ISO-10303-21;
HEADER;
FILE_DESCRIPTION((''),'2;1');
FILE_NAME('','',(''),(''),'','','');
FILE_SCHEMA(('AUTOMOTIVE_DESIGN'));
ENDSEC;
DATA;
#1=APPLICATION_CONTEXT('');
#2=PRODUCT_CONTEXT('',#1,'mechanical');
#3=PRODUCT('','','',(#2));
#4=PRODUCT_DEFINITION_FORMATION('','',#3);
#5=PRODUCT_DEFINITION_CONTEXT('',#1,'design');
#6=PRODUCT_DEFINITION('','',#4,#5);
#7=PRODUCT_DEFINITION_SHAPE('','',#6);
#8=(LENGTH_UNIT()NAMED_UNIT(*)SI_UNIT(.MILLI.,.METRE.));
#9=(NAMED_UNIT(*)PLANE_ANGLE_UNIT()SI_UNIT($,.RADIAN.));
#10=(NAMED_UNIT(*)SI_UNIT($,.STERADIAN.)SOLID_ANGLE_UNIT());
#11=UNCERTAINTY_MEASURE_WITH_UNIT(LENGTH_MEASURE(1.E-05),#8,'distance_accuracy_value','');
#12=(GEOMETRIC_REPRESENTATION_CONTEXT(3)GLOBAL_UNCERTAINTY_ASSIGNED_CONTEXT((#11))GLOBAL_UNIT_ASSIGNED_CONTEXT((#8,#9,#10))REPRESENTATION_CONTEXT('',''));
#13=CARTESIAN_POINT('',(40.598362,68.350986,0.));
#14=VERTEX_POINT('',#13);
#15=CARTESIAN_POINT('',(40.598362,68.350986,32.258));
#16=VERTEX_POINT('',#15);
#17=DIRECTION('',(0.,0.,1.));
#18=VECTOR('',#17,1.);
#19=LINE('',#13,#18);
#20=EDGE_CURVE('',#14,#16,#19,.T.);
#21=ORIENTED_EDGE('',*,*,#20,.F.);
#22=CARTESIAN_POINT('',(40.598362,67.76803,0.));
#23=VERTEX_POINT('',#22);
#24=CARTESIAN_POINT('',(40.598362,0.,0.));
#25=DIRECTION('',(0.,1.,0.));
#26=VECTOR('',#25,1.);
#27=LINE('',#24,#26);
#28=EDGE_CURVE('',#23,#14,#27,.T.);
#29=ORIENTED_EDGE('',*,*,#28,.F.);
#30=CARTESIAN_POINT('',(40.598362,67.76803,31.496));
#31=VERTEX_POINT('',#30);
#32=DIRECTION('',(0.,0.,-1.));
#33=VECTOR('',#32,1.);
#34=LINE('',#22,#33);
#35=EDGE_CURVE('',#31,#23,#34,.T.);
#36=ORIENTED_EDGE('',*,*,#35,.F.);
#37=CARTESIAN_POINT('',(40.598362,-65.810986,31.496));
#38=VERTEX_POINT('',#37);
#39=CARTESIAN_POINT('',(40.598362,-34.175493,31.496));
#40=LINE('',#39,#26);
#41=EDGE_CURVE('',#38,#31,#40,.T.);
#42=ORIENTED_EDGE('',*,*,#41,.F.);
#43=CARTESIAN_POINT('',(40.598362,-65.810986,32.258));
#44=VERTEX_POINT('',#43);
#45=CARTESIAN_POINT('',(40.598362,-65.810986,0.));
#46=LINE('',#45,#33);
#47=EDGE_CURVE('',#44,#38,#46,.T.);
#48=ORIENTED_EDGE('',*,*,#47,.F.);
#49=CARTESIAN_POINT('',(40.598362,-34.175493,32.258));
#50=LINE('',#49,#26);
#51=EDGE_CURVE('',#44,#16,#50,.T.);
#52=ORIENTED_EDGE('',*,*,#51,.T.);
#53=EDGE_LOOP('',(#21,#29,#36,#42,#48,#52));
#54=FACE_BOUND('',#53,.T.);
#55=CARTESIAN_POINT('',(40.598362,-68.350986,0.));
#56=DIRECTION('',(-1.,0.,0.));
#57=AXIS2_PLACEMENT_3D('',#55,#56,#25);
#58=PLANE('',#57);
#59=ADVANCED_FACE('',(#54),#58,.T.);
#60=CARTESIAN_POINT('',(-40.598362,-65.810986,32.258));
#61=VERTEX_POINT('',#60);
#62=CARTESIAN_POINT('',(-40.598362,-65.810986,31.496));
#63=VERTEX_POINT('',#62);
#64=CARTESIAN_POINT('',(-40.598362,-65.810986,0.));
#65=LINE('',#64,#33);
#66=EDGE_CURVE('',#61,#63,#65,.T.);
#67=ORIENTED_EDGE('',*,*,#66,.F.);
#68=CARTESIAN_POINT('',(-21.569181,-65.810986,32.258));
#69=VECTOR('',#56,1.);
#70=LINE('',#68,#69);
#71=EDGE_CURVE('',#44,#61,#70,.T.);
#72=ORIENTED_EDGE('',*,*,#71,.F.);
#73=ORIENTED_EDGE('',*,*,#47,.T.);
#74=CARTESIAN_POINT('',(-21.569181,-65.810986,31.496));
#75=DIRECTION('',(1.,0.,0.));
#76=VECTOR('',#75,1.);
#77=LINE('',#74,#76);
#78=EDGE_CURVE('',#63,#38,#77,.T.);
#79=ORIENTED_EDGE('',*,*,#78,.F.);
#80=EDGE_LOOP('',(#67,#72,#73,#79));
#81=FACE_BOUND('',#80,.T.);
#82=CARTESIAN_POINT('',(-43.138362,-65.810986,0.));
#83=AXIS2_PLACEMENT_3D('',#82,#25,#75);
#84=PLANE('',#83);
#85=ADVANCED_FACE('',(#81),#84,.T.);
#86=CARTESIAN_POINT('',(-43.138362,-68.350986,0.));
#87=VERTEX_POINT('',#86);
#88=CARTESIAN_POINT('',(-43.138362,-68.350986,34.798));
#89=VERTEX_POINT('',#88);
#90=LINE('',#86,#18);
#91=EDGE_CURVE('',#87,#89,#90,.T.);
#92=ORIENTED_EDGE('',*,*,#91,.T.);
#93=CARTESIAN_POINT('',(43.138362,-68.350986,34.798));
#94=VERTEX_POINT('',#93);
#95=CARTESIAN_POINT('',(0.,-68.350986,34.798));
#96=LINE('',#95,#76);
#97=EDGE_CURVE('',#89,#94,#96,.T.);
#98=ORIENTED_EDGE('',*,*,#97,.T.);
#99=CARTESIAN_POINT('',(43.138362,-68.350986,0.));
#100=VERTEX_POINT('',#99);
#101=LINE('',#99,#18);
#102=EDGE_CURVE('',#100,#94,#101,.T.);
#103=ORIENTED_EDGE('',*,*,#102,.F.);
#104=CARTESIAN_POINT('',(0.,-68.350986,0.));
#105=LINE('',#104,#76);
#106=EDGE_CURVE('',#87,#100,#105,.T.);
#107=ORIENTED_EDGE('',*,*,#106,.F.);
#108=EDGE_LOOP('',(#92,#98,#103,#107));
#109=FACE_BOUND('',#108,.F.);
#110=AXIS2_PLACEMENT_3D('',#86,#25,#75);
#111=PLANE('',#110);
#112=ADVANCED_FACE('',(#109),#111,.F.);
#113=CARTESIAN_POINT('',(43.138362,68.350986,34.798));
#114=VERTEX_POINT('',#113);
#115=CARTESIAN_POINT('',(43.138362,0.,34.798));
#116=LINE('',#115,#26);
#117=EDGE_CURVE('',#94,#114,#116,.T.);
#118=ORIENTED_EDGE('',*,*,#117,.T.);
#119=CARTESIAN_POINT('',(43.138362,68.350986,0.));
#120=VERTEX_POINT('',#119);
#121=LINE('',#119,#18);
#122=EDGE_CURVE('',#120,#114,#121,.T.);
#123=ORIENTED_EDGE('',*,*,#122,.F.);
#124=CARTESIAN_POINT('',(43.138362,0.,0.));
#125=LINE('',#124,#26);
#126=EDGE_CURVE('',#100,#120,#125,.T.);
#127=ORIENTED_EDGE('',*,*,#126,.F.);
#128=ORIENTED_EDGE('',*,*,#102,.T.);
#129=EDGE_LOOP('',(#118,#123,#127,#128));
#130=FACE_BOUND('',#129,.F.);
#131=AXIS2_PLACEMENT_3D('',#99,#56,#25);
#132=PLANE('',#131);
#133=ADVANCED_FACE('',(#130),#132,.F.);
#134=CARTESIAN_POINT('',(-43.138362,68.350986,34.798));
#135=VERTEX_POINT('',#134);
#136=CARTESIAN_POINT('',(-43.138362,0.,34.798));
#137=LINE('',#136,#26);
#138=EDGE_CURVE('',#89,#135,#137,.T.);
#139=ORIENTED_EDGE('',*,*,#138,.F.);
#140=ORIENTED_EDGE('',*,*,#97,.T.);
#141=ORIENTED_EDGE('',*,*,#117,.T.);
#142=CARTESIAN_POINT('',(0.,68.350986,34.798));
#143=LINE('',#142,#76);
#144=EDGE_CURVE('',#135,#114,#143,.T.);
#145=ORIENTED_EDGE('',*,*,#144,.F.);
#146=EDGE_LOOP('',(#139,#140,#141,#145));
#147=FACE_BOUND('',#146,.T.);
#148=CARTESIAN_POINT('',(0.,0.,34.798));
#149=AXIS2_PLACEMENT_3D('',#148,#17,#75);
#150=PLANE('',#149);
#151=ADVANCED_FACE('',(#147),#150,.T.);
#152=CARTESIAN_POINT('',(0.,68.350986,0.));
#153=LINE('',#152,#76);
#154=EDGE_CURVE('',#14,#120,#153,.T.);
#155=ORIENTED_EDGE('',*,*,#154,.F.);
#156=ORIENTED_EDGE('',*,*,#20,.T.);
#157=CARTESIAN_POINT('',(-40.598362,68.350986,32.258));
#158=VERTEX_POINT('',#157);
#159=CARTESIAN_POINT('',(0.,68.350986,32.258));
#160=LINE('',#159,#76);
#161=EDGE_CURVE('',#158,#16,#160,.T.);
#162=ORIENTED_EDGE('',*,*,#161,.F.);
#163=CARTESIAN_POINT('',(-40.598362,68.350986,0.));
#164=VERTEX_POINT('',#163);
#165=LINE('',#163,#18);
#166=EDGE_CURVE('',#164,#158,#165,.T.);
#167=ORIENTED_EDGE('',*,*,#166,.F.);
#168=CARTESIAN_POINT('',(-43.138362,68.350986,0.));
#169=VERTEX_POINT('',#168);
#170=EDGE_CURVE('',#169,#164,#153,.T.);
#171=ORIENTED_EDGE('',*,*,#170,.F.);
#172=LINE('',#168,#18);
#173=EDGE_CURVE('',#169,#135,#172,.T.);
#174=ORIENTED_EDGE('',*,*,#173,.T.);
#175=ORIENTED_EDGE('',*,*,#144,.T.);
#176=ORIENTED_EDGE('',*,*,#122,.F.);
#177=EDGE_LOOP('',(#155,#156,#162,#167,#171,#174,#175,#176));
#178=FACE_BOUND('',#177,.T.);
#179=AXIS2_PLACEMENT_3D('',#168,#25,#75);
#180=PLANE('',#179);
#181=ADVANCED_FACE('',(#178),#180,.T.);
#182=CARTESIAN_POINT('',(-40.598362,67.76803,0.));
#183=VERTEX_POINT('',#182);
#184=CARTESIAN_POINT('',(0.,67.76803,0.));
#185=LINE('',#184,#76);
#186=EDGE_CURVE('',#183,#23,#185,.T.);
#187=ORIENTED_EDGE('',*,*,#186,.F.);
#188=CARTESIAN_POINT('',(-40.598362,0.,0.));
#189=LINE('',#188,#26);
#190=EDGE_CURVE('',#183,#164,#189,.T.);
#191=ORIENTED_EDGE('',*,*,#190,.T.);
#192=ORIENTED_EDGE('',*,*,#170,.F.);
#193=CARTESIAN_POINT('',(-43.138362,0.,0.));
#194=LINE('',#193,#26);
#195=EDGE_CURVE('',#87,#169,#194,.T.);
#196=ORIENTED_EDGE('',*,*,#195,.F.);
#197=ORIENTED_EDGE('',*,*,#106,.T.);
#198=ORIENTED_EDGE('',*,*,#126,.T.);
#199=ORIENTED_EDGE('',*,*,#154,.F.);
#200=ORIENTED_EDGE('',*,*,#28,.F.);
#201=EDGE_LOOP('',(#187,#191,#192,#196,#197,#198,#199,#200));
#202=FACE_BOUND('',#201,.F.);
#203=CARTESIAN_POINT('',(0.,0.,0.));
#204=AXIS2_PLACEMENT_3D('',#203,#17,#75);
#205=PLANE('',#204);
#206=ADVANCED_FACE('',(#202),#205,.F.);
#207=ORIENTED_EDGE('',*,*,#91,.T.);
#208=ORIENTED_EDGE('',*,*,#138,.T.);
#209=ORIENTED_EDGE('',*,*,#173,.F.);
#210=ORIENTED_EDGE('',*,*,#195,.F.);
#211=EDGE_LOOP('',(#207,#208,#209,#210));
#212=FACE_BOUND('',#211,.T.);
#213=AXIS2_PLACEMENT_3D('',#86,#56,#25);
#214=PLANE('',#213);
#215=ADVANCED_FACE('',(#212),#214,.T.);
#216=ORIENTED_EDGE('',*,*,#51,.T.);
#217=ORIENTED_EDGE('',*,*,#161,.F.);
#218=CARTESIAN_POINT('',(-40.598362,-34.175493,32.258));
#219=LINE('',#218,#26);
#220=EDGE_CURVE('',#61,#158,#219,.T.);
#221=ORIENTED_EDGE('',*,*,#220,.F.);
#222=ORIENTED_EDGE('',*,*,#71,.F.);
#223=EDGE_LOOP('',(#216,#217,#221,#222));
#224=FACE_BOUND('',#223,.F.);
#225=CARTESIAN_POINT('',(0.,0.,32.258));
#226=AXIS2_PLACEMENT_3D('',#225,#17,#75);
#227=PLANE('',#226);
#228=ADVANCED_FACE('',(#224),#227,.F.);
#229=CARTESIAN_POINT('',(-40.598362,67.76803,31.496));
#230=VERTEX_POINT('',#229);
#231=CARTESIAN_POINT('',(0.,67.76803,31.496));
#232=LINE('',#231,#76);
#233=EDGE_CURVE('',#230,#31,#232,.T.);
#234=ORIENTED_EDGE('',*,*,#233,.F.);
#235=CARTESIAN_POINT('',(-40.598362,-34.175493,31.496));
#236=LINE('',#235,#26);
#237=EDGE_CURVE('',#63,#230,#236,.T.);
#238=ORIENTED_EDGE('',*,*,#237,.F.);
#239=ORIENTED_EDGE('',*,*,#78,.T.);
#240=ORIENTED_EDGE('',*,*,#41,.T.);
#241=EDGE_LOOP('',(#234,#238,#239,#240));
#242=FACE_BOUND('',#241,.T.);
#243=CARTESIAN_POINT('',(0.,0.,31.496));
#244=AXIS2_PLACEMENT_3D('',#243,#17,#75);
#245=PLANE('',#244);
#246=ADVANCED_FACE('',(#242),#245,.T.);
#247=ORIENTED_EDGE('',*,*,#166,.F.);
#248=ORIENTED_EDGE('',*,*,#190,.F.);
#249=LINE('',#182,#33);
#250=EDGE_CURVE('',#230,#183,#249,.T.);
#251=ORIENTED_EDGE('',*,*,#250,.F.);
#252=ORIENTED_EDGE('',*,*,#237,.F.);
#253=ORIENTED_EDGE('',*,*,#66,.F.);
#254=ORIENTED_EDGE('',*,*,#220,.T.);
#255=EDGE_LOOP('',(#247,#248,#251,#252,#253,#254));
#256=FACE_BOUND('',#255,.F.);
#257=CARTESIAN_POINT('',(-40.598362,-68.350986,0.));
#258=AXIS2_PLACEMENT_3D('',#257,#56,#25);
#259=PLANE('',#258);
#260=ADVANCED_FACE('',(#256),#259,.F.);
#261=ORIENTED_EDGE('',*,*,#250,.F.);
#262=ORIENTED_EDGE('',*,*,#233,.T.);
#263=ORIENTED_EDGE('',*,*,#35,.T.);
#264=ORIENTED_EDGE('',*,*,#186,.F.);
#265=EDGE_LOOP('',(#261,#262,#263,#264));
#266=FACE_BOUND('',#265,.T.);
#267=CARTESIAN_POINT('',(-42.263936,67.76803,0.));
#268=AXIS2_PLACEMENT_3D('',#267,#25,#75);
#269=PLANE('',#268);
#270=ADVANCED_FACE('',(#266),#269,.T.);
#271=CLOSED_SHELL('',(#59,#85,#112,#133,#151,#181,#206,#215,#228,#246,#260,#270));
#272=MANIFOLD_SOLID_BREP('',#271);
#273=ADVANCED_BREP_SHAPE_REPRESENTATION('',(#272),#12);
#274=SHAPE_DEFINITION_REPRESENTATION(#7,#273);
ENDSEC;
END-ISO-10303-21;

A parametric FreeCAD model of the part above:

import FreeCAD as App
import Part
import Sketcher
Q = App.Units.Quantity


def faces_at(feature, points):
    """Names of the faces that lie closest to the given points."""
    faces = feature.Shape.Faces
    near = lambda p: min(range(len(faces)), key=lambda i: faces[i].distToShape(Part.Vertex(*p))[0])
    return sorted({f"Face{near(p) + 1}" for p in points})

doc = App.newDocument("Part")
body = doc.addObject("PartDesign::Body", "Body")

sketch1 = doc.addObject("Sketcher::SketchObject", "Sketch")
body.addObject(sketch1)
sketch1.AttachmentSupport = (doc.XY_Plane, [""])
sketch1.MapMode = "FlatFace"
sketch1.addGeometry([
    Part.LineSegment(App.Vector(-43.138362, 68.350986, 0), App.Vector(-43.138362, -68.350986, 0)),
    Part.LineSegment(App.Vector(-43.138362, -68.350986, 0), App.Vector(43.138362, -68.350986, 0)),
    Part.LineSegment(App.Vector(43.138362, -68.350986, 0), App.Vector(43.138362, 68.350986, 0)),
    Part.LineSegment(App.Vector(43.138362, 68.350986, 0), App.Vector(-43.138362, 68.350986, 0)),
], False)
sketch1.addConstraint([
    Sketcher.Constraint("Coincident", 0, 2, 1, 1),
    Sketcher.Constraint("Coincident", 1, 2, 2, 1),
    Sketcher.Constraint("Coincident", 2, 2, 3, 1),
    Sketcher.Constraint("Coincident", 3, 2, 0, 1),
    Sketcher.Constraint("Vertical", 0),
    Sketcher.Constraint("Horizontal", 1),
    Sketcher.Constraint("Vertical", 2),
    Sketcher.Constraint("Horizontal", 3),
    Sketcher.Constraint("Symmetric", 0, 2, 2, 2, -1, 1),
    Sketcher.Constraint("DistanceX", 1, 1, 1, 2, Q("86.276724 mm")),
    Sketcher.Constraint("DistanceY", 0, 2, 0, 1, Q("136.701972 mm")),
])
pad1 = doc.addObject("PartDesign::Pad", "Pad")
body.addObject(pad1)
pad1.Profile = sketch1
pad1.Length = Q("1.37 in")
doc.recompute()

thickness = doc.addObject("PartDesign::Thickness", "Thickness")
body.addObject(thickness)
thickness.Base = (pad1, faces_at(pad1, [(0, 0, 0), (0, 68.351, 17.399)]))
thickness.Value = Q("0.1 in")
thickness.Reversed = True
thickness.Join = "Arc"

sketch2 = doc.addObject("Sketcher::SketchObject", "Sketch001")
body.addObject(sketch2)
sketch2.AttachmentSupport = (doc.XY_Plane, [""])
sketch2.MapMode = "FlatFace"
sketch2.addGeometry([
    Part.LineSegment(App.Vector(-42.263936, 67.76803, 0), App.Vector(-42.263936, -67.76803, 0)),
    Part.LineSegment(App.Vector(-42.263936, -67.76803, 0), App.Vector(42.263936, -67.76803, 0)),
    Part.LineSegment(App.Vector(42.263936, -67.76803, 0), App.Vector(42.263936, 67.76803, 0)),
    Part.LineSegment(App.Vector(42.263936, 67.76803, 0), App.Vector(-42.263936, 67.76803, 0)),
], False)
sketch2.addConstraint([
    Sketcher.Constraint("Coincident", 0, 2, 1, 1),
    Sketcher.Constraint("Coincident", 1, 2, 2, 1),
    Sketcher.Constraint("Coincident", 2, 2, 3, 1),
    Sketcher.Constraint("Coincident", 3, 2, 0, 1),
    Sketcher.Constraint("Vertical", 0),
    Sketcher.Constraint("Horizontal", 1),
    Sketcher.Constraint("Vertical", 2),
    Sketcher.Constraint("Horizontal", 3),
    Sketcher.Constraint("Symmetric", 0, 2, 2, 2, -1, 1),
    Sketcher.Constraint("DistanceY", 0, 2, 0, 1, Q("135.53606 mm")),
    Sketcher.Constraint("DistanceX", 1, 1, 1, 2, Q("84.527872 mm")),
])
pad2 = doc.addObject("PartDesign::Pad", "Pad001")
body.addObject(pad2)
pad2.Profile = sketch2
pad2.Length = Q("1.24 in")

doc.recompute()
